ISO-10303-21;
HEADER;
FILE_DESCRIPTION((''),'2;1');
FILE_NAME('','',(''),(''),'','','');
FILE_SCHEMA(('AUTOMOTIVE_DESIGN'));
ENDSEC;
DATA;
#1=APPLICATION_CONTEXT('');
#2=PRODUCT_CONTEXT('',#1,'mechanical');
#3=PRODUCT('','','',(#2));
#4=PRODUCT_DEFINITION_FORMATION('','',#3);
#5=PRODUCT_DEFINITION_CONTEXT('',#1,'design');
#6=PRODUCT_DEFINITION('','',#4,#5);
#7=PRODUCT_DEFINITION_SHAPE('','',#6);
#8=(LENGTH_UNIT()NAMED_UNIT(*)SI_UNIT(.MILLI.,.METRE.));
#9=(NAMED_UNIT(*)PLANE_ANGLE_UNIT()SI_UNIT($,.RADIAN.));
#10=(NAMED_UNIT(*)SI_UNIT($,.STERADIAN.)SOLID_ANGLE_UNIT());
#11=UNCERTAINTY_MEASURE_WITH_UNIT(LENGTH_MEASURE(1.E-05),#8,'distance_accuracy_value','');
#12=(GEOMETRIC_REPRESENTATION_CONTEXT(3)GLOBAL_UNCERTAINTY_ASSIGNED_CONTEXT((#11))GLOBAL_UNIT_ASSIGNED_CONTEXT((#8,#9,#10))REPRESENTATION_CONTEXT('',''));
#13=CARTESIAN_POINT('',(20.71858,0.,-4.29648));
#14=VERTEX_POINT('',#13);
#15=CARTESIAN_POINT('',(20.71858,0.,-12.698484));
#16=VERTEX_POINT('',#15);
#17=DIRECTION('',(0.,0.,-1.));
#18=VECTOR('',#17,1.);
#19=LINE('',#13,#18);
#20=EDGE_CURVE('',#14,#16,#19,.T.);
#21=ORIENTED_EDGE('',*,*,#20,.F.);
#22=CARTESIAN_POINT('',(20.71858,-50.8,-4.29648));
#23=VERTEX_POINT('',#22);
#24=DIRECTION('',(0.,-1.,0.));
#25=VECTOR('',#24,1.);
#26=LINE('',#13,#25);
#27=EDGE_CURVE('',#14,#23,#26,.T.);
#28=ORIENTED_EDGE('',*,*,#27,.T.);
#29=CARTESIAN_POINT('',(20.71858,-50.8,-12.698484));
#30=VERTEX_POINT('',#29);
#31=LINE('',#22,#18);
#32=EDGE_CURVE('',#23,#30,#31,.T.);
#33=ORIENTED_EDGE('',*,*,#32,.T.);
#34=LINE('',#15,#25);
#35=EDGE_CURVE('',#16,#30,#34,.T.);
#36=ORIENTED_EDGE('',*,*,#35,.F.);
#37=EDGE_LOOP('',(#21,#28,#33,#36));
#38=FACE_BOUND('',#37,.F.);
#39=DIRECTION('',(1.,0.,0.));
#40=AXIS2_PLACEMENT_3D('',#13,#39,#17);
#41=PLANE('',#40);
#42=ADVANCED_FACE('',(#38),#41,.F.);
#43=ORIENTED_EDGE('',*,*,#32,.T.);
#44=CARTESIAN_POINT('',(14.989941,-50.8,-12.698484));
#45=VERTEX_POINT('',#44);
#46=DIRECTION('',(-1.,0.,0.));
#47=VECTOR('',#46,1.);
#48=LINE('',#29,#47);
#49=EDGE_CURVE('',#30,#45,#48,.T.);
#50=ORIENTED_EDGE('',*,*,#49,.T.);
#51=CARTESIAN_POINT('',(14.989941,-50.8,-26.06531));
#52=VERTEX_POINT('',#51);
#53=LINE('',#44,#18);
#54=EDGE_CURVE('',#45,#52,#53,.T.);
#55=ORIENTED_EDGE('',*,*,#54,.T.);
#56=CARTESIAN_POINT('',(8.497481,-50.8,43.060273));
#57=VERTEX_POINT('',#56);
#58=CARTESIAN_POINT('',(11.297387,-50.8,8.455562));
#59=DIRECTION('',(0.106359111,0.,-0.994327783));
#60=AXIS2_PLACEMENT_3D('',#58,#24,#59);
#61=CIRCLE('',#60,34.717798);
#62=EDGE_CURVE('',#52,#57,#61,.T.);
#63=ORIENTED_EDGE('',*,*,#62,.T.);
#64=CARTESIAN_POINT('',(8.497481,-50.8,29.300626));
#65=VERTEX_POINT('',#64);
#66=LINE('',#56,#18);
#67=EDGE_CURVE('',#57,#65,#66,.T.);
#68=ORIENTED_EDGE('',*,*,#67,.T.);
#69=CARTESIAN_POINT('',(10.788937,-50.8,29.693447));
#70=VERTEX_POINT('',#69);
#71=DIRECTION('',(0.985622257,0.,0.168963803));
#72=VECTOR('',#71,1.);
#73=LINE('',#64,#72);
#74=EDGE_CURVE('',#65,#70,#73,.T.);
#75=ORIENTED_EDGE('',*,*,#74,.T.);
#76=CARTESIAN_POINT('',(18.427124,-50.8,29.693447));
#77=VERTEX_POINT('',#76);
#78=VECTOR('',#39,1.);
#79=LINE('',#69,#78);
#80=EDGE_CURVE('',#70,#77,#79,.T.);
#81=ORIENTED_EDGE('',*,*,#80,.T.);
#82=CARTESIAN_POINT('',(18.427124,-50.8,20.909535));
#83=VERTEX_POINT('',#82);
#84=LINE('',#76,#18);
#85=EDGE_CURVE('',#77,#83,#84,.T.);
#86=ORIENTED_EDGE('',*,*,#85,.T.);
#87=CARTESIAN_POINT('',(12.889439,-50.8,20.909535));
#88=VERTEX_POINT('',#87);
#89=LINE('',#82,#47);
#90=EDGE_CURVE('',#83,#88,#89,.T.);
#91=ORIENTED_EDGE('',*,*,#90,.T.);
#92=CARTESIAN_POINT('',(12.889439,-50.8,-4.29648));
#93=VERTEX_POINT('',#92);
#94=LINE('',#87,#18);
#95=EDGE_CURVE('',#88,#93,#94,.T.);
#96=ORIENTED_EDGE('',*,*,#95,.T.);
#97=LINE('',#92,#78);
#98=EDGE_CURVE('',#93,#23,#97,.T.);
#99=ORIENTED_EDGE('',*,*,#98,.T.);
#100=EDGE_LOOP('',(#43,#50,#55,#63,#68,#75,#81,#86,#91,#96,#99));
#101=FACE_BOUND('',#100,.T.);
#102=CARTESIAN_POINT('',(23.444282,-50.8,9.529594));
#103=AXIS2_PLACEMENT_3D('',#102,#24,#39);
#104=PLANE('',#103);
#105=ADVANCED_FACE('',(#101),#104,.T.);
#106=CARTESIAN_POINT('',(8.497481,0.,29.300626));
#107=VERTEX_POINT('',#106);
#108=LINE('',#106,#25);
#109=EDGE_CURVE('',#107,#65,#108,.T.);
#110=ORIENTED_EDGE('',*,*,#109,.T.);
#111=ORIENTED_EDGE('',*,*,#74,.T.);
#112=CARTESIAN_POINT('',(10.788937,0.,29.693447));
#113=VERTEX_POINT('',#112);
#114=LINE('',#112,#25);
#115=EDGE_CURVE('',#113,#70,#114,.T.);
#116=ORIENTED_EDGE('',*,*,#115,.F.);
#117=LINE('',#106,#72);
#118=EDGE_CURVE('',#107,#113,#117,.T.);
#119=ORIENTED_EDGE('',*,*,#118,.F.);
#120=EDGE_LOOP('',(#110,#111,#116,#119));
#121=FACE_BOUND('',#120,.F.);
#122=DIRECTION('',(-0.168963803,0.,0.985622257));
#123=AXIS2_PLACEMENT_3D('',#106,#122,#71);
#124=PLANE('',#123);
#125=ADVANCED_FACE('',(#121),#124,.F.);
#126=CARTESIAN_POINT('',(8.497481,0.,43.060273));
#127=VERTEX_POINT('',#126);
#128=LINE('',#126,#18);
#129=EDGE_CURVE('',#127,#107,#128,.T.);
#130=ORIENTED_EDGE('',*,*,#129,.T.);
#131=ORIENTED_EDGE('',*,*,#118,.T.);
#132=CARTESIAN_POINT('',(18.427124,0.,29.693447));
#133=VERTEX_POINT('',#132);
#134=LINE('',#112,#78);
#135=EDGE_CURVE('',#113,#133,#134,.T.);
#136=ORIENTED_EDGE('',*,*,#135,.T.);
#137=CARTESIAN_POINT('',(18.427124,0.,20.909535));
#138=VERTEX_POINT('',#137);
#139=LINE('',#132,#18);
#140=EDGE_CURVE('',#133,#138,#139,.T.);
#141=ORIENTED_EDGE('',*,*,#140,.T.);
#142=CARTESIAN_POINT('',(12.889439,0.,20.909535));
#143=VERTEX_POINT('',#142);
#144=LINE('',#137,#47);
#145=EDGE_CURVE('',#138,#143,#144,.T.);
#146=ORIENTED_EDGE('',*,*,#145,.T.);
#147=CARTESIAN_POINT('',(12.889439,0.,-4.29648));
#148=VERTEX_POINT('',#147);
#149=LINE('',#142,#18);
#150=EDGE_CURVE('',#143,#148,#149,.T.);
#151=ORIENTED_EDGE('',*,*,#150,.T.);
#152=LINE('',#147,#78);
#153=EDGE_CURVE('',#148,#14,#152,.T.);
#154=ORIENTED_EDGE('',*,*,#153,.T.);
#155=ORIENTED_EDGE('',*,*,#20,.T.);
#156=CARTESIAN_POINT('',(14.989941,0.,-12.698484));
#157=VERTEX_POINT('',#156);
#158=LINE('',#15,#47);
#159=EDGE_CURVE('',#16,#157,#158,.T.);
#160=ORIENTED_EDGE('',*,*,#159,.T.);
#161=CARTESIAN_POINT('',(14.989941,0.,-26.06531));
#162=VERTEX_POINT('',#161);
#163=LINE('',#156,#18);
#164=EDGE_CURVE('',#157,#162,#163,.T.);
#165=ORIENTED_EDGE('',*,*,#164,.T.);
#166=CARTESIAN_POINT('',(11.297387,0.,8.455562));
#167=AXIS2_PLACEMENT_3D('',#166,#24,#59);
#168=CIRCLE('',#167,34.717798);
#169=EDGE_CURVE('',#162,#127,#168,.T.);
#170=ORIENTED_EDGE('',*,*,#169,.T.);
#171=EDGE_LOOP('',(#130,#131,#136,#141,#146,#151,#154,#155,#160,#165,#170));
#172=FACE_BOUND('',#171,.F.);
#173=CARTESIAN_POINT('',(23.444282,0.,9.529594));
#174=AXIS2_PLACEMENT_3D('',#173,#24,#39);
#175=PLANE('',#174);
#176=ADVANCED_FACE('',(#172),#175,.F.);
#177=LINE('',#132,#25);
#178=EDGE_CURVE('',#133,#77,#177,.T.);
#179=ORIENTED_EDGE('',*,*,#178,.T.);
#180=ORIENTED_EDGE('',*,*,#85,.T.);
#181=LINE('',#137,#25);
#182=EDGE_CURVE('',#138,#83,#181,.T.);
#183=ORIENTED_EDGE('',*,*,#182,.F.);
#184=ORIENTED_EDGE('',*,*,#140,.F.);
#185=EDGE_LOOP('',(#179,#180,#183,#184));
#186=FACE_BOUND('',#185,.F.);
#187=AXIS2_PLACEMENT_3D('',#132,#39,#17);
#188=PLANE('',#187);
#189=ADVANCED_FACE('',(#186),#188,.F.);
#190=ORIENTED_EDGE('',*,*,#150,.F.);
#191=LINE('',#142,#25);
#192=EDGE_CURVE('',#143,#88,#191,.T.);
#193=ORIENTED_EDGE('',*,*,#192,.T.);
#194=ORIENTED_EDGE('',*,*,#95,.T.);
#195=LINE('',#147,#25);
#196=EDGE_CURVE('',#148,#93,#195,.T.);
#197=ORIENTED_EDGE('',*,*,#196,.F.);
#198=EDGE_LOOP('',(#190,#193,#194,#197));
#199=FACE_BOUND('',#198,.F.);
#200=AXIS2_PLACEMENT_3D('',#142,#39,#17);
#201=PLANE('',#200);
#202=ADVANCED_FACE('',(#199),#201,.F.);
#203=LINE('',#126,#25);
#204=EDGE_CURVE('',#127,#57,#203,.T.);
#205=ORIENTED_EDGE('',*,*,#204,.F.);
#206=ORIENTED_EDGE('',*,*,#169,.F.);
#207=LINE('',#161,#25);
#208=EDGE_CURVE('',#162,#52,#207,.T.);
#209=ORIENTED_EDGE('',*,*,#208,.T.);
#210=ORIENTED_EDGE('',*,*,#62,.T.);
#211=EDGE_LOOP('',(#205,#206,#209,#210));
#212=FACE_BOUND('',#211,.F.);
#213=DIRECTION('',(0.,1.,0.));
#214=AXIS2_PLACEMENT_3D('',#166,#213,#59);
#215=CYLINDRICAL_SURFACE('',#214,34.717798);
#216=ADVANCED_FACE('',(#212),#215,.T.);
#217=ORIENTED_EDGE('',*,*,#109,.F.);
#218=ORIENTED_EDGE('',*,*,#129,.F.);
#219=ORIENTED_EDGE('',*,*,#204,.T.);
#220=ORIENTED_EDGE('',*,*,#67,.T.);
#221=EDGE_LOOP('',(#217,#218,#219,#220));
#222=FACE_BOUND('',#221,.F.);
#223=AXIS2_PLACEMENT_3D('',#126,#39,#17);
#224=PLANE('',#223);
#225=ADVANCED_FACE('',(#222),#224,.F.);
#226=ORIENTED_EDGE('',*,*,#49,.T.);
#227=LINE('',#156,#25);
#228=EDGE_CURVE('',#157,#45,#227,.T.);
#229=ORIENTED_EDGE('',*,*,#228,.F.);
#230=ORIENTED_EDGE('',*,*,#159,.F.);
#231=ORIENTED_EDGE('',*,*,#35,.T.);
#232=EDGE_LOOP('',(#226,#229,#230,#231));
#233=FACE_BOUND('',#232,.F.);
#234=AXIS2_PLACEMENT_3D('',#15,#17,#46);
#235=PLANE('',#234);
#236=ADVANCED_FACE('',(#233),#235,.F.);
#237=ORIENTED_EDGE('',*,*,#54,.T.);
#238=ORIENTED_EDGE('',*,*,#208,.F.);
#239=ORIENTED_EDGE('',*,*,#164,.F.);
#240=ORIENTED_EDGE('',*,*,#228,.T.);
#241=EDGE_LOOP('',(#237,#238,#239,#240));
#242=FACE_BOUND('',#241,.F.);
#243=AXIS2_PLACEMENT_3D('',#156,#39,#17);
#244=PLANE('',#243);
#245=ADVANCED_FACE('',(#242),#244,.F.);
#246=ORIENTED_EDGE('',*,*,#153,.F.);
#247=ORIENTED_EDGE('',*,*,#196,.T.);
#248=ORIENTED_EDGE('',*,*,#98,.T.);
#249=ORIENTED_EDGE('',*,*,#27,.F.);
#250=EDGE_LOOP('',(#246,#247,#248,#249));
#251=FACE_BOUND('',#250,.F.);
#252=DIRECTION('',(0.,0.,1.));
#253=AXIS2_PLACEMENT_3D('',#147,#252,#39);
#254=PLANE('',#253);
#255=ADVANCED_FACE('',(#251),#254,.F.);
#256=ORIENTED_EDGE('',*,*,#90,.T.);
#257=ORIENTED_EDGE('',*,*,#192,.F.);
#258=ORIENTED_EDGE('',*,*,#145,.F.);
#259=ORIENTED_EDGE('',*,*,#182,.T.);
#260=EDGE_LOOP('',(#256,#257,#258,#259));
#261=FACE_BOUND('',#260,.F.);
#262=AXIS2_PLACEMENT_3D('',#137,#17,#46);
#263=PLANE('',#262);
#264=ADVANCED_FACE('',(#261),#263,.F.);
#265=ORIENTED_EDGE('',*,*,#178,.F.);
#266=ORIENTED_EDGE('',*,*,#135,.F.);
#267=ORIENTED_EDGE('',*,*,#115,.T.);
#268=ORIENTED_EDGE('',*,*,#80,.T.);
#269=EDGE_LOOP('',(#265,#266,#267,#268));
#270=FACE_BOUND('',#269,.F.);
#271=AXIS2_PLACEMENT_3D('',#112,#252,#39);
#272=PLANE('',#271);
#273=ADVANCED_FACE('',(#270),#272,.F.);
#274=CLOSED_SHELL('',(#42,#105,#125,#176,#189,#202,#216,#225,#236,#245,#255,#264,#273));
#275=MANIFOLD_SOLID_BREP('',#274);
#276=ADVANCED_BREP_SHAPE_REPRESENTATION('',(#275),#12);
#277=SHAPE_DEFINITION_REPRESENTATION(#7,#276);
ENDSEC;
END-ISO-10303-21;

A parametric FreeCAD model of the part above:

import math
import FreeCAD as App
import Part
import Sketcher

V = App.Vector
Q = App.Units.Quantity

doc = App.newDocument("Part")
body = doc.addObject("PartDesign::Body", "Body")

# Sketch on XZ plane
sketch1 = body.newObject("Sketcher::SketchObject", "Sketch")
sketch1.AttachmentSupport = (doc.getObject("XZ_Plane"), [""])
sketch1.MapMode = "FlatFace"
sketch1.addGeometry([
    Part.LineSegment(V(14.989941, -12.698484, 0), V(14.989941, -26.06531, 0)),  # 0
    Part.ArcOfCircle(Part.Circle(V(11.297387, 8.455562, 0), V(0, 0, 1), 34.717798), math.radians(-83.894524), math.radians(94.625789)),  # 1
    Part.LineSegment(V(8.497481, 43.060273, 0), V(8.497481, 29.300626, 0)),  # 2
    Part.LineSegment(V(8.497481, 29.300626, 0), V(10.788937, 29.693447, 0)),  # 3
    Part.LineSegment(V(10.788937, 29.693447, 0), V(18.427124, 29.693447, 0)),  # 4
    Part.LineSegment(V(18.427124, 29.693447, 0), V(18.427124, 20.909535, 0)),  # 5
    Part.LineSegment(V(18.427124, 20.909535, 0), V(12.889439, 20.909535, 0)),  # 6
    Part.LineSegment(V(12.889439, 20.909535, 0), V(12.889439, -4.29648, 0)),  # 7
    Part.LineSegment(V(12.889439, -4.29648, 0), V(20.71858, -4.29648, 0)),  # 8
    Part.LineSegment(V(20.71858, -4.29648, 0), V(20.71858, -12.698484, 0)),  # 9
    Part.LineSegment(V(20.71858, -12.698484, 0), V(14.989941, -12.698484, 0)),  # 10
], False)
sketch1.addConstraint([
    Sketcher.Constraint("Coincident", 0, 2, 1, 1),
    Sketcher.Constraint("Coincident", 1, 2, 2, 1),
    Sketcher.Constraint("Coincident", 2, 2, 3, 1),
    Sketcher.Constraint("Coincident", 3, 2, 4, 1),
    Sketcher.Constraint("Coincident", 4, 2, 5, 1),
    Sketcher.Constraint("Coincident", 5, 2, 6, 1),
    Sketcher.Constraint("Coincident", 6, 2, 7, 1),
    Sketcher.Constraint("Coincident", 7, 2, 8, 1),
    Sketcher.Constraint("Coincident", 8, 2, 9, 1),
    Sketcher.Constraint("Coincident", 9, 2, 10, 1),
    Sketcher.Constraint("Coincident", 10, 2, 0, 1),
    Sketcher.Constraint("Vertical", 0),
    Sketcher.Constraint("Vertical", 2),
    Sketcher.Constraint("Horizontal", 4),
    Sketcher.Constraint("Vertical", 5),
    Sketcher.Constraint("Horizontal", 6),
    Sketcher.Constraint("Vertical", 7),
    Sketcher.Constraint("Horizontal", 8),
    Sketcher.Constraint("Vertical", 9),
    Sketcher.Constraint("Horizontal", 10),
    Sketcher.Constraint("Radius", 1, Q("34.717798 mm")),
    Sketcher.Constraint("DistanceX", 8, 1, 8, 2, Q("7.829141 mm")),
    Sketcher.Constraint("DistanceX", 10, 2, 10, 1, Q("5.728639 mm")),
    Sketcher.Constraint("DistanceY", 5, 2, 5, 1, Q("8.783912 mm")),
    Sketcher.Constraint("DistanceX", 3, 2, 6, 2, Q("2.100502 mm")),
    Sketcher.Constraint("DistanceX", 4, 1, 4, 2, Q("7.638187 mm")),
    Sketcher.Constraint("DistanceY", 0, 2, 0, 1, Q("13.366826 mm")),
    Sketcher.Constraint("DistanceY", 2, 2, 2, 1, Q("13.759647 mm")),
    Sketcher.Constraint("DistanceY", 7, 2, 7, 1, Q("25.206015 mm")),
    Sketcher.Constraint("DistanceY", 9, 2, 9, 1, Q("8.402004 mm")),
    Sketcher.Constraint("DistanceY", -1, 1, 1, 3, Q("8.455562 mm")),
    Sketcher.Constraint("DistanceX", -1, 1, 0, 2, Q("14.989941 mm")),
    Sketcher.Constraint("DistanceY", 0, 2, -1, 1, Q("26.06531 mm")),
    Sketcher.Constraint("DistanceX", -1, 1, 1, 2, Q("8.497481 mm")),
])
pad1 = body.newObject("PartDesign::Pad", "Pad")
pad1.Profile = sketch1
pad1.Length = Q("2 in")

doc.recompute()
